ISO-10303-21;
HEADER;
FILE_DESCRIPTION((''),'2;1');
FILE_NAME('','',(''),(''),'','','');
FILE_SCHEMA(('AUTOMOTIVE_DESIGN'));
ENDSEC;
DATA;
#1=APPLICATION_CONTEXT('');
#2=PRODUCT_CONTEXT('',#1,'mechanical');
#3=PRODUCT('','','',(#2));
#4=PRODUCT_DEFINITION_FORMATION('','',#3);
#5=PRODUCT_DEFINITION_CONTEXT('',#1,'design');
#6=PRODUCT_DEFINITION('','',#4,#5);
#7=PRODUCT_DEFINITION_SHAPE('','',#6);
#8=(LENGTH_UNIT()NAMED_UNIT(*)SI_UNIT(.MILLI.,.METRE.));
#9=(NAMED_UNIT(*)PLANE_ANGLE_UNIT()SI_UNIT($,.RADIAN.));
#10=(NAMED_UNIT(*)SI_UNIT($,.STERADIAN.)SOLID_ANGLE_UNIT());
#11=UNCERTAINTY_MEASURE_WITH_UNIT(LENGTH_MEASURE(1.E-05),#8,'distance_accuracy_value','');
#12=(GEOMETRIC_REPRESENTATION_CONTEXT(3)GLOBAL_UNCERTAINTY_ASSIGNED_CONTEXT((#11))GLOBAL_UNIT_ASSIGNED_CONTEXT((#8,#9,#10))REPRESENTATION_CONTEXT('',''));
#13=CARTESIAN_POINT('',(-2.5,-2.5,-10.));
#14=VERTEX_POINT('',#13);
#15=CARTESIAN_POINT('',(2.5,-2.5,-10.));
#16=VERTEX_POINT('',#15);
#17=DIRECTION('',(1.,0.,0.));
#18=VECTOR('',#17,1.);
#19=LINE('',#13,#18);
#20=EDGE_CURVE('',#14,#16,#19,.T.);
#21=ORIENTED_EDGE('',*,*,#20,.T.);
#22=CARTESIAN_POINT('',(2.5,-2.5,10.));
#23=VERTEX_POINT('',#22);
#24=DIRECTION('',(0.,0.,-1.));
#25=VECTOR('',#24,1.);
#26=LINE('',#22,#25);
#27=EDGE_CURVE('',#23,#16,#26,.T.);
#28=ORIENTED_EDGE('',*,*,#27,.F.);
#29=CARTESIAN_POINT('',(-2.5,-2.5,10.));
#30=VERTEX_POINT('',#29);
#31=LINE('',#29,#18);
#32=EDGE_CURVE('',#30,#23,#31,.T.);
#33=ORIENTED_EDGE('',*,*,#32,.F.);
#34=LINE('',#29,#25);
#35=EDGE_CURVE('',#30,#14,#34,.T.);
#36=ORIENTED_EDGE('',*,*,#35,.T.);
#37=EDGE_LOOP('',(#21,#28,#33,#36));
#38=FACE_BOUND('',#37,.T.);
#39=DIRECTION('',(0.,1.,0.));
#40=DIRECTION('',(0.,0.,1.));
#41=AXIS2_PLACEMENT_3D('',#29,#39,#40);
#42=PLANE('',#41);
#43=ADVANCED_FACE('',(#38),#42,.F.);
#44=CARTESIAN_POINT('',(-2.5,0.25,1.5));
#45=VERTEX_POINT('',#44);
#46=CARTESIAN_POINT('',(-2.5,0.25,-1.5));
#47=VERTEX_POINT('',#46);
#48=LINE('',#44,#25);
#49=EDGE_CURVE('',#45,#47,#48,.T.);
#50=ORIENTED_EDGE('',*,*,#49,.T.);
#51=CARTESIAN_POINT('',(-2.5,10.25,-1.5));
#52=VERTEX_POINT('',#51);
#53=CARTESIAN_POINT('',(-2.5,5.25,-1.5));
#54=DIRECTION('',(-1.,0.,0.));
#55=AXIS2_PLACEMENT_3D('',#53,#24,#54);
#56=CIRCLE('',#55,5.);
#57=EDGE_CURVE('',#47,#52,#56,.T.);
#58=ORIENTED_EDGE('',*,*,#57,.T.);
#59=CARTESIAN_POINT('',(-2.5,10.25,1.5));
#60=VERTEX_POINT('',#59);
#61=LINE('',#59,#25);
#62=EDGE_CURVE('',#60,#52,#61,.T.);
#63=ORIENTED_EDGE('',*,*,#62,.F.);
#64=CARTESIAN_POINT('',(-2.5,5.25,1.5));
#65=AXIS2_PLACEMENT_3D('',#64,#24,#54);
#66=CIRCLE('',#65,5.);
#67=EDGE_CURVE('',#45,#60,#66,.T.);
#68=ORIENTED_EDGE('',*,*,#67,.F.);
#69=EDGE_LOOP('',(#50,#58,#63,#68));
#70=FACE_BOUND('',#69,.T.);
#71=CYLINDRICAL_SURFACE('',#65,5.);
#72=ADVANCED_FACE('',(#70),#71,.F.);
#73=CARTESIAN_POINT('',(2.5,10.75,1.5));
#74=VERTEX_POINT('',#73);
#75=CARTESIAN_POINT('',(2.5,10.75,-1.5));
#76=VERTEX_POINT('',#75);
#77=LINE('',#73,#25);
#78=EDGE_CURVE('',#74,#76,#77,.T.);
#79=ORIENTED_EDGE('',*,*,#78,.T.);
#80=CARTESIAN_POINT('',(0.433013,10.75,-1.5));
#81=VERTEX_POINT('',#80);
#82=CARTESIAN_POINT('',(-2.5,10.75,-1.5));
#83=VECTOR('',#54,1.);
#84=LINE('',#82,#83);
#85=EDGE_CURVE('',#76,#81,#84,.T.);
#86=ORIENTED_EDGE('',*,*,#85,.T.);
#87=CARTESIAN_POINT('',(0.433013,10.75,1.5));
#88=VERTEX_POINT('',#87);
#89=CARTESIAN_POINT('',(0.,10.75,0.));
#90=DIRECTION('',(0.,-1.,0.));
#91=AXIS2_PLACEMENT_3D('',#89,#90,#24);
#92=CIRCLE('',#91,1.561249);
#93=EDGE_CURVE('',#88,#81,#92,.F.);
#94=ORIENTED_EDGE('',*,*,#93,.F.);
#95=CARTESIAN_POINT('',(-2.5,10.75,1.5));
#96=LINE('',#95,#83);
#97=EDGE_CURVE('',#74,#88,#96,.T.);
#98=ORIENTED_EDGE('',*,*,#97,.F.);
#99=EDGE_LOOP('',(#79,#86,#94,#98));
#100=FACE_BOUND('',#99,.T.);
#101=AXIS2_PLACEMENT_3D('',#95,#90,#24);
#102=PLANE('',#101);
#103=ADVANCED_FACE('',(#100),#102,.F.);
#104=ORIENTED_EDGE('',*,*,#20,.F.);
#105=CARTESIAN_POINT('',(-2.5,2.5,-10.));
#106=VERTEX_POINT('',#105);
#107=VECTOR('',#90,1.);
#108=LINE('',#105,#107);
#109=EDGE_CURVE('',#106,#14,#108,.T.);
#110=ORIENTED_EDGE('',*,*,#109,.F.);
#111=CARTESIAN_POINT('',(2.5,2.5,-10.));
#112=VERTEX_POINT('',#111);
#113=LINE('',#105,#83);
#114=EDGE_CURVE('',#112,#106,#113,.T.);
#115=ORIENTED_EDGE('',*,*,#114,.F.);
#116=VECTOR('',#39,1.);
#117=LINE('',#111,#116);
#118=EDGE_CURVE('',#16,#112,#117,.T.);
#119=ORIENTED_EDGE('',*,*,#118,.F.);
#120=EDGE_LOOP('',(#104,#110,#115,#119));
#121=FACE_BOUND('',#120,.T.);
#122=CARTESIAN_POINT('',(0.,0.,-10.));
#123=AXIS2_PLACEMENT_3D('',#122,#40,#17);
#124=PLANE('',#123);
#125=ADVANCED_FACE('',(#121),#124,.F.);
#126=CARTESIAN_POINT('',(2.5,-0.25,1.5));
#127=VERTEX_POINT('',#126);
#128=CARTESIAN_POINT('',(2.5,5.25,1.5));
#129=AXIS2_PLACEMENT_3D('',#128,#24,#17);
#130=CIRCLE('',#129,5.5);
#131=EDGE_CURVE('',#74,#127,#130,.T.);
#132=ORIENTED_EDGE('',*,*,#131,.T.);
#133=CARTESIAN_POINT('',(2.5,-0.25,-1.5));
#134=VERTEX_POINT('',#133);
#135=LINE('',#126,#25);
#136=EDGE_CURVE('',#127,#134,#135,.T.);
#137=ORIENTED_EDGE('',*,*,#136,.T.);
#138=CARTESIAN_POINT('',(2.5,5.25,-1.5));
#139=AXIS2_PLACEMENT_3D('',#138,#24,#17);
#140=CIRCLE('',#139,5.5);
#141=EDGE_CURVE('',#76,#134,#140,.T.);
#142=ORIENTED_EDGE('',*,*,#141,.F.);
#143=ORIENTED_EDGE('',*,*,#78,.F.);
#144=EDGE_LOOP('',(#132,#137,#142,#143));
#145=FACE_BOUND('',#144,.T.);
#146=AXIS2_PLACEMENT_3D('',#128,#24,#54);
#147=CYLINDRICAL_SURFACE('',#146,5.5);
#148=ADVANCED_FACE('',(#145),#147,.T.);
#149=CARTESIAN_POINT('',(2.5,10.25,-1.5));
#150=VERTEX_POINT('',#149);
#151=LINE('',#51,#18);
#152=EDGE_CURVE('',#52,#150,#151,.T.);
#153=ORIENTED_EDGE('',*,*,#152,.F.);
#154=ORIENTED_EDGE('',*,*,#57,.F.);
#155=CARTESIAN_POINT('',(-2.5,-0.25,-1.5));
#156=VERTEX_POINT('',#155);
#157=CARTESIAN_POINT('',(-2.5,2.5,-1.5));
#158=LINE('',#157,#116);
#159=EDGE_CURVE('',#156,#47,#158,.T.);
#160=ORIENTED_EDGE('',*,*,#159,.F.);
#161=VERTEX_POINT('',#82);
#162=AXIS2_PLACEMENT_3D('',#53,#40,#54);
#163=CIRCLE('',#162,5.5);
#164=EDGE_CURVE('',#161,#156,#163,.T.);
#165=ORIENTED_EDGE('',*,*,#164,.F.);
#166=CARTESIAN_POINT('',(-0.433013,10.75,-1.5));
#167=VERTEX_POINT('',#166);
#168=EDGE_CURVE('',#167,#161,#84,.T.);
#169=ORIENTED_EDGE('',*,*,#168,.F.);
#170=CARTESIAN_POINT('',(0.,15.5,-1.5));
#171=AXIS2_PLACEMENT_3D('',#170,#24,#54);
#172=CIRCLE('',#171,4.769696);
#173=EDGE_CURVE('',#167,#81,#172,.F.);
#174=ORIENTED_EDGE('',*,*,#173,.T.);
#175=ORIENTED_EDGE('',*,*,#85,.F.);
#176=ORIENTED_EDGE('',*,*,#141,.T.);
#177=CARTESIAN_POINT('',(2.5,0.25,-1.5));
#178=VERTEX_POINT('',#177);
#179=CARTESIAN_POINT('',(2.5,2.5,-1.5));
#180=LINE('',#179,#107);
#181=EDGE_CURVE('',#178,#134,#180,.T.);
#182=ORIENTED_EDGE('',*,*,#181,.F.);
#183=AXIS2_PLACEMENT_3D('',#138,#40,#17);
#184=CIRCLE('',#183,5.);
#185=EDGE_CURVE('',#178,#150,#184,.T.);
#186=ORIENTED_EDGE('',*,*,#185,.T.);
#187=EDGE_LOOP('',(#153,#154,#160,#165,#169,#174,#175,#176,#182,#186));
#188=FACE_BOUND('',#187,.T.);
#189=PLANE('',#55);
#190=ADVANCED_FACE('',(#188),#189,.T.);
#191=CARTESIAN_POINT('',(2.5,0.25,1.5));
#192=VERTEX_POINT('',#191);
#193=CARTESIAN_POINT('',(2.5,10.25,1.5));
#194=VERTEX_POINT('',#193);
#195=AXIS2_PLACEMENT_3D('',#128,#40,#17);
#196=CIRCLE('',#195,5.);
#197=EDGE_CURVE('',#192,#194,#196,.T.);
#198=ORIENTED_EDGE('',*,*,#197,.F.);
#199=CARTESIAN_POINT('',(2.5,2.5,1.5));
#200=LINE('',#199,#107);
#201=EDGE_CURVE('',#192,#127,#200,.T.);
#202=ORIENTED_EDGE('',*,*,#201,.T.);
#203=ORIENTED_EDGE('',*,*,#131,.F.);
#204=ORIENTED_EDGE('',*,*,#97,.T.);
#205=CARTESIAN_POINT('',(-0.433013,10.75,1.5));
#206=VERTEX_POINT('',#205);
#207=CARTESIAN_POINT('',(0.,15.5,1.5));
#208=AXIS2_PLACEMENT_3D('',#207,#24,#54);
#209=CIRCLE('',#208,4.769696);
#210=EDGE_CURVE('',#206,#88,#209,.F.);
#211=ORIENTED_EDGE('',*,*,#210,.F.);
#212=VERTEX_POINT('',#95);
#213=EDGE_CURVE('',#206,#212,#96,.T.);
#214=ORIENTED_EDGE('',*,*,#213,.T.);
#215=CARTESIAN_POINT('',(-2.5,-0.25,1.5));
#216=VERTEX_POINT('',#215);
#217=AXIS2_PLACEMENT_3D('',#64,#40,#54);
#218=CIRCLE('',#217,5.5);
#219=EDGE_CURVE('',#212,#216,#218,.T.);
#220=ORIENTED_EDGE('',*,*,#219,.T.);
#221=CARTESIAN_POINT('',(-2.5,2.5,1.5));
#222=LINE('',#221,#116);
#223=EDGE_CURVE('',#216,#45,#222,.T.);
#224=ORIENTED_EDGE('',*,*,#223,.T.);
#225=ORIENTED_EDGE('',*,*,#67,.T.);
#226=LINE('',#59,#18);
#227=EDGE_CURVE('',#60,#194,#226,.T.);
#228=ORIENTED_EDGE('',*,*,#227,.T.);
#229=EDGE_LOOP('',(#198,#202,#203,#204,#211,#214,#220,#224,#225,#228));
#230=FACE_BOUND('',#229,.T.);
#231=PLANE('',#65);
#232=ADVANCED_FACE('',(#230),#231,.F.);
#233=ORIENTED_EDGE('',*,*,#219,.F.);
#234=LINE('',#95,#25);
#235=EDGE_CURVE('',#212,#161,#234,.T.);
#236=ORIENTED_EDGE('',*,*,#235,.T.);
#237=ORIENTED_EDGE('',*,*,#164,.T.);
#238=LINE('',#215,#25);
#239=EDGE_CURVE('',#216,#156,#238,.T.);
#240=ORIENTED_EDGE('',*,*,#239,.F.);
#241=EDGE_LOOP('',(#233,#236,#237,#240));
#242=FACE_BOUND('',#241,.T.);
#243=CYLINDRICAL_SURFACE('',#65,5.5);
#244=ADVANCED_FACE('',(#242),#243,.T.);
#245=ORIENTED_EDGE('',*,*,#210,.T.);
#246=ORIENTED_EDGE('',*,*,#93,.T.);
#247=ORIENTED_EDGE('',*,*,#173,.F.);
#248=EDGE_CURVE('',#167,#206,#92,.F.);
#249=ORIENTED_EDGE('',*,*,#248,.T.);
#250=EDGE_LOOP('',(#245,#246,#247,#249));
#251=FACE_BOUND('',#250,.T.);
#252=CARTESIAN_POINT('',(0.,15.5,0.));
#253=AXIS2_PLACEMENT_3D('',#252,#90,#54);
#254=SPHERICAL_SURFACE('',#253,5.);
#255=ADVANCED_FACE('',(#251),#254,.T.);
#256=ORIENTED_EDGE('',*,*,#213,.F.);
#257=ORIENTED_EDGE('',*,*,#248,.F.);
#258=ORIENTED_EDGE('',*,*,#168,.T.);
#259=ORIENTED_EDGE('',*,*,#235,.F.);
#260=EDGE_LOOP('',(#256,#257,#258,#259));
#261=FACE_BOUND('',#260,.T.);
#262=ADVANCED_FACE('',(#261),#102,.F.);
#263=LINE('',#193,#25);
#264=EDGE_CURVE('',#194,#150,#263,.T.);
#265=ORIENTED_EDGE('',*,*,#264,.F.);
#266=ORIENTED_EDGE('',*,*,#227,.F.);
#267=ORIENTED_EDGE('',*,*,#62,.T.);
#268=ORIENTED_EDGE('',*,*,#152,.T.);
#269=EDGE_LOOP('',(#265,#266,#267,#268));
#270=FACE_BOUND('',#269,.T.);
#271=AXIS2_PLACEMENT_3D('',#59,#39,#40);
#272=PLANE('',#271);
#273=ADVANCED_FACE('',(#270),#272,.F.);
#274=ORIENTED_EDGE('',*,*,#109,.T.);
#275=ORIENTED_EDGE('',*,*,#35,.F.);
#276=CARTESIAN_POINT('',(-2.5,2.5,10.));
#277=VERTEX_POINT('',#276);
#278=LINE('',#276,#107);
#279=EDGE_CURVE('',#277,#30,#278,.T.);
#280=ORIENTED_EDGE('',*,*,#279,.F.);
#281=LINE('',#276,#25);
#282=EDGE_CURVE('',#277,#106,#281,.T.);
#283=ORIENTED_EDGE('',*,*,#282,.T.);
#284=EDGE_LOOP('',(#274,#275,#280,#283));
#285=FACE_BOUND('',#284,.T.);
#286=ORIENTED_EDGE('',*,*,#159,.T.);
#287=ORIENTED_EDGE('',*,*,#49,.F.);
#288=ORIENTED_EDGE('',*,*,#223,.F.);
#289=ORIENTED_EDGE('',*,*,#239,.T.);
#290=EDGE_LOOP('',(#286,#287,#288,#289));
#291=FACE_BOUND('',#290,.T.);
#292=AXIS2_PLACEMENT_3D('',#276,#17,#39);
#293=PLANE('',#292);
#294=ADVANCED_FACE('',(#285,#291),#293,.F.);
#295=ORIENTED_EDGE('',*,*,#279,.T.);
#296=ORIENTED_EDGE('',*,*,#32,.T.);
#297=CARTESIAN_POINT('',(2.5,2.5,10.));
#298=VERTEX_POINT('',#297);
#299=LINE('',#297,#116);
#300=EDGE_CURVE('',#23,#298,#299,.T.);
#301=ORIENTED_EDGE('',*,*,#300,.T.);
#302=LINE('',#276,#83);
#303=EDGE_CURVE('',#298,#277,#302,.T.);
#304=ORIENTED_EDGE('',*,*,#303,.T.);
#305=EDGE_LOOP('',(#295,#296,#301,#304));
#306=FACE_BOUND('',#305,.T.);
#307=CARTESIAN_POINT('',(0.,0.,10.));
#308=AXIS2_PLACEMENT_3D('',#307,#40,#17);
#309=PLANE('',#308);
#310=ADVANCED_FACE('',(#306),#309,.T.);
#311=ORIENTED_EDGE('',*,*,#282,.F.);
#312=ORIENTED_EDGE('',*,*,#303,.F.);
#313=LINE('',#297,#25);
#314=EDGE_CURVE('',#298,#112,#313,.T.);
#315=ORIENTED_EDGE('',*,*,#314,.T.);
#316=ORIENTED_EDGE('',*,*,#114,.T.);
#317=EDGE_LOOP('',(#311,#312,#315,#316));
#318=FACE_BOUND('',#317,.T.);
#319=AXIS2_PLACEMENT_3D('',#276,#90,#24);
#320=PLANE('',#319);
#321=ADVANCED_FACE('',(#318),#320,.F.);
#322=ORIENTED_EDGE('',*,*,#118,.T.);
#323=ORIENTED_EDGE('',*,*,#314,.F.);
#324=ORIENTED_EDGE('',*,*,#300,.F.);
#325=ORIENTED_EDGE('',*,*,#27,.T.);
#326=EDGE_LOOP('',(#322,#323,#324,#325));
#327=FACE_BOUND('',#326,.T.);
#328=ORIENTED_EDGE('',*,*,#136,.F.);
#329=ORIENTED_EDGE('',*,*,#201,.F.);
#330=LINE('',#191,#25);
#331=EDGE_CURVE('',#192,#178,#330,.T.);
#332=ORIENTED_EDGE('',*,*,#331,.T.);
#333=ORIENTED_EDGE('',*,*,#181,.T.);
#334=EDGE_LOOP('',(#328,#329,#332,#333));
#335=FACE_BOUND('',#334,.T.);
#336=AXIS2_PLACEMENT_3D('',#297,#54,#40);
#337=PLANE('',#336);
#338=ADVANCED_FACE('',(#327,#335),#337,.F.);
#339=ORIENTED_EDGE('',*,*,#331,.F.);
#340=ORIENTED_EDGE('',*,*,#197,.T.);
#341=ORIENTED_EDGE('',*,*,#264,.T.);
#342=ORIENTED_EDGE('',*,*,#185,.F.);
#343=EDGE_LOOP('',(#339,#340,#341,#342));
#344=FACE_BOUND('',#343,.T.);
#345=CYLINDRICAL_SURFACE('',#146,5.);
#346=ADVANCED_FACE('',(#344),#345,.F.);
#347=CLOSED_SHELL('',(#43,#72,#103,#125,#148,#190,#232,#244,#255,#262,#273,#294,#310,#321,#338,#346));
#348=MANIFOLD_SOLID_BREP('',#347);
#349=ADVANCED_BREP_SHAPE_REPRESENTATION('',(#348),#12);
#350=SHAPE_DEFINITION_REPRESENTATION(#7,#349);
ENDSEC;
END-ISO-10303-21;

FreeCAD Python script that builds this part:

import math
import FreeCAD as App
import Part
import Sketcher
Q = App.Units.Quantity


def add_polygon(sketch, points):
    """Adds a closed chain of lines whose ends are joined by coincident constraints."""
    first, n = sketch.GeometryCount, len(points)
    for a, b in zip(points, points[1:] + points[:1]):
        sketch.addGeometry(Part.LineSegment(App.Vector(*a, 0), App.Vector(*b, 0)), False)
    for i in range(n):
        sketch.addConstraint(Sketcher.Constraint("Coincident", first + i, 2, first + (i + 1) % n, 1))

doc = App.newDocument("Part")
body = doc.addObject("PartDesign::Body", "Body")

sketch1 = doc.addObject("Sketcher::SketchObject", "Sketch")
body.addObject(sketch1)
sketch1.AttachmentSupport = (doc.XY_Plane, [""])
sketch1.MapMode = "FlatFace"
add_polygon(sketch1, [(-2, 2), (-2, -2), (2, -2), (2, 2)])
sketch1.addConstraint(Sketcher.Constraint("Vertical", 0))
sketch1.addConstraint(Sketcher.Constraint("Horizontal", 1))
sketch1.addConstraint(Sketcher.Constraint("Vertical", 2))
sketch1.addConstraint(Sketcher.Constraint("Horizontal", 3))
sketch1.addConstraint(Sketcher.Constraint("Symmetric", 0, 2, 2, 2, -1, 1))
sketch1.addConstraint(Sketcher.Constraint("Equal", 3, 0))
sketch1.addConstraint(Sketcher.Constraint("DistanceX", 1, 1, 1, 2, Q("5 mm")))
pad1 = doc.addObject("PartDesign::Pad", "Pad")
body.addObject(pad1)
pad1.Profile = sketch1
pad1.Length = 20
pad1.Midplane = True

sketch2 = doc.addObject("Sketcher::SketchObject", "Sketch001")
body.addObject(sketch2)
sketch2.AttachmentSupport = (doc.XY_Plane, [""])
sketch2.MapMode = "FlatFace"
sketch2.addGeometry(Part.LineSegment(App.Vector(0, 0.2, 0), App.Vector(-2.5, 0.2, 0)), False)
sketch2.addGeometry(Part.ArcOfCircle(Part.Circle(App.Vector(-2.5, 5.2, 0), App.Vector(0, 0, 1), 5), math.radians(90), math.radians(270)), False)
sketch2.addGeometry(Part.LineSegment(App.Vector(-2.5, 10.2, 0), App.Vector(0, 10.2, 0)), False)
sketch2.addGeometry(Part.LineSegment(App.Vector(0, 10.2, 0), App.Vector(0, 10.8, 0)), False)
sketch2.addGeometry(Part.LineSegment(App.Vector(0, 10.8, 0), App.Vector(-2.5, 10.8, 0)), False)
sketch2.addGeometry(Part.ArcOfCircle(Part.Circle(App.Vector(-2.5, 5.2, 0), App.Vector(0, 0, 1), 5.5), math.radians(90), math.radians(270)), False)
sketch2.addGeometry(Part.LineSegment(App.Vector(-2.5, -0.2, 0), App.Vector(0, -0.2, 0)), False)
sketch2.addGeometry(Part.LineSegment(App.Vector(0, -0.2, 0), App.Vector(0, 0.2, 0)), False)
sketch2.addConstraint(Sketcher.Constraint("Tangent", 0, 2, 1, 2))
sketch2.addConstraint(Sketcher.Constraint("Tangent", 1, 1, 2, 1))
sketch2.addConstraint(Sketcher.Constraint("Coincident", 2, 2, 3, 1))
sketch2.addConstraint(Sketcher.Constraint("Coincident", 3, 2, 4, 1))
sketch2.addConstraint(Sketcher.Constraint("Tangent", 4, 2, 5, 1))
sketch2.addConstraint(Sketcher.Constraint("Tangent", 5, 2, 6, 1))
sketch2.addConstraint(Sketcher.Constraint("Coincident", 6, 2, 7, 1))
sketch2.addConstraint(Sketcher.Constraint("Coincident", 7, 2, 0, 1))
sketch2.addConstraint(Sketcher.Constraint("Horizontal", 0))
sketch2.addConstraint(Sketcher.Constraint("Horizontal", 2))
sketch2.addConstraint(Sketcher.Constraint("Vertical", 3))
sketch2.addConstraint(Sketcher.Constraint("Horizontal", 4))
sketch2.addConstraint(Sketcher.Constraint("Horizontal", 6))
sketch2.addConstraint(Sketcher.Constraint("Vertical", 7))
sketch2.addConstraint(Sketcher.Constraint("Coincident", 5, 3, 1, 3))
sketch2.addConstraint(Sketcher.Constraint("Symmetric", 6, 2, 7, 2, -1, 1))
sketch2.addConstraint(Sketcher.Constraint("PointOnObject", 2, 2, -2))
sketch2.addConstraint(Sketcher.Constraint("Radius", 1, Q("5 mm")))
sketch2.addConstraint(Sketcher.Constraint("Radius", 5, Q("5.5 mm")))
sketch2.addConstraint(Sketcher.Constraint("DistanceX", 0, 2, 0, 1, Q("2.5 mm")))
pad2 = doc.addObject("PartDesign::Pad", "Pad001")
body.addObject(pad2)
pad2.Profile = sketch2
pad2.Length = 3
pad2.Midplane = True
doc.recompute()

mirrored = doc.addObject("PartDesign::Mirrored", "Mirrored")
body.addObject(mirrored)
mirrored.Originals = [pad2]
mirrored.MirrorPlane = (doc.YZ_Plane, [""])
body.Tip = mirrored

sketch3 = doc.addObject("Sketcher::SketchObject", "Sketch002")
body.addObject(sketch3)
sketch3.AttachmentSupport = (doc.XY_Plane, [""])
sketch3.MapMode = "FlatFace"
sketch3.addGeometry(Part.LineSegment(App.Vector(0, 10, 0), App.Vector(0, 20, 0)), False)
sketch3.addGeometry(Part.ArcOfCircle(Part.Circle(App.Vector(0, 16, 0), App.Vector(0, 0, 1), 5), math.radians(90), math.radians(270)), False)
sketch3.addConstraint(Sketcher.Constraint("Coincident", 0, 1, 1, 2))
sketch3.addConstraint(Sketcher.Constraint("Coincident", 1, 1, 0, 2))
sketch3.addConstraint(Sketcher.Constraint("Vertical", 0))
sketch3.addConstraint(Sketcher.Constraint("PointOnObject", 1, 3, -2))
sketch3.addConstraint(Sketcher.Constraint("PointOnObject", 0, 1, -2))
sketch3.addConstraint(Sketcher.Constraint("Radius", 1, Q("5 mm")))
sketch3.addConstraint(Sketcher.Constraint("DistanceY", -1, 1, 1, 3, Q("15.5 mm")))
revolution = doc.addObject("PartDesign::Revolution", "Revolution")
body.addObject(revolution)
revolution.Profile = sketch3
revolution.ReferenceAxis = (sketch3, ["V_Axis"])
revolution.Angle = 360

doc.recompute()
